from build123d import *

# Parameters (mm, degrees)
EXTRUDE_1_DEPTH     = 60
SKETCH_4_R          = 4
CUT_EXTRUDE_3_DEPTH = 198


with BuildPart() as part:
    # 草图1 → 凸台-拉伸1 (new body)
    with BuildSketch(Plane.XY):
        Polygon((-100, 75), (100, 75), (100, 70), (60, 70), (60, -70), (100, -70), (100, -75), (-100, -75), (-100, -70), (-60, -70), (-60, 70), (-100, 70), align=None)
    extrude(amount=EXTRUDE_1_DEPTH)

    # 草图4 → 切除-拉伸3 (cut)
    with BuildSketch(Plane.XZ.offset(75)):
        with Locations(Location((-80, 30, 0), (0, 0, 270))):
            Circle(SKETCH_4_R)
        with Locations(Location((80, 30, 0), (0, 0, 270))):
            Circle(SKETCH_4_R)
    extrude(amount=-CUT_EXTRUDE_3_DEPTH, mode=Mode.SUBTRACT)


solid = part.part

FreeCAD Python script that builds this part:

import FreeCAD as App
import Part
import Sketcher

V = App.Vector
Q = App.Units.Quantity

doc = App.newDocument("Part")
body = doc.addObject("PartDesign::Body", "Body")

# Sketch on XY plane
sketch1 = body.newObject("Sketcher::SketchObject", "Sketch")
sketch1.AttachmentSupport = (doc.getObject("XY_Plane"), [""])
sketch1.MapMode = "FlatFace"
sketch1.addGeometry(Part.LineSegment(V(100, 75, 0), V(-100, 75, 0)), False)
sketch1.addGeometry(Part.LineSegment(V(-100, 75, 0), V(-100, 70, 0)), False)
sketch1.addGeometry(Part.LineSegment(V(-100, 70, 0), V(-60, 70, 0)), False)
sketch1.addGeometry(Part.LineSegment(V(-60, 70, 0), V(-60, -70, 0)), False)
sketch1.addGeometry(Part.LineSegment(V(-60, -70, 0), V(-100, -70, 0)), False)
sketch1.addGeometry(Part.LineSegment(V(-100, -70, 0), V(-100, -75, 0)), False)
sketch1.addGeometry(Part.LineSegment(V(-100, -75, 0), V(100, -75, 0)), False)
sketch1.addGeometry(Part.LineSegment(V(100, -75, 0), V(100, -70, 0)), False)
sketch1.addGeometry(Part.LineSegment(V(100, -70, 0), V(60, -70, 0)), False)
sketch1.addGeometry(Part.LineSegment(V(60, -70, 0), V(60, 70, 0)), False)
sketch1.addGeometry(Part.LineSegment(V(60, 70, 0), V(100, 70, 0)), False)
sketch1.addGeometry(Part.LineSegment(V(100, 70, 0), V(100, 75, 0)), False)
sketch1.addConstraint(Sketcher.Constraint("Coincident", 0, 2, 1, 1))
sketch1.addConstraint(Sketcher.Constraint("Coincident", 1, 2, 2, 1))
sketch1.addConstraint(Sketcher.Constraint("Coincident", 2, 2, 3, 1))
sketch1.addConstraint(Sketcher.Constraint("Coincident", 3, 2, 4, 1))
sketch1.addConstraint(Sketcher.Constraint("Coincident", 4, 2, 5, 1))
sketch1.addConstraint(Sketcher.Constraint("Coincident", 5, 2, 6, 1))
sketch1.addConstraint(Sketcher.Constraint("Coincident", 6, 2, 7, 1))
sketch1.addConstraint(Sketcher.Constraint("Coincident", 7, 2, 8, 1))
sketch1.addConstraint(Sketcher.Constraint("Coincident", 8, 2, 9, 1))
sketch1.addConstraint(Sketcher.Constraint("Coincident", 9, 2, 10, 1))
sketch1.addConstraint(Sketcher.Constraint("Coincident", 10, 2, 11, 1))
sketch1.addConstraint(Sketcher.Constraint("Coincident", 11, 2, 0, 1))
sketch1.addConstraint(Sketcher.Constraint("Horizontal", 0))
sketch1.addConstraint(Sketcher.Constraint("Vertical", 1))
sketch1.addConstraint(Sketcher.Constraint("Horizontal", 2))
sketch1.addConstraint(Sketcher.Constraint("Vertical", 3))
sketch1.addConstraint(Sketcher.Constraint("Horizontal", 4))
sketch1.addConstraint(Sketcher.Constraint("Vertical", 5))
sketch1.addConstraint(Sketcher.Constraint("Horizontal", 6))
sketch1.addConstraint(Sketcher.Constraint("Vertical", 7))
sketch1.addConstraint(Sketcher.Constraint("Horizontal", 8))
sketch1.addConstraint(Sketcher.Constraint("Vertical", 9))
sketch1.addConstraint(Sketcher.Constraint("Horizontal", 10))
sketch1.addConstraint(Sketcher.Constraint("Vertical", 11))
sketch1.addConstraint(Sketcher.Constraint("Symmetric", 0, 2, 6, 2, -1, 1))
sketch1.addConstraint(Sketcher.Constraint("Symmetric", 2, 2, 8, 2, -1, 1))
sketch1.addConstraint(Sketcher.Constraint("Symmetric", 4, 2, 10, 2, -1, 1))
sketch1.addConstraint(Sketcher.Constraint("Symmetric", 4, 2, 7, 2, -2))
sketch1.addConstraint(Sketcher.Constraint("DistanceX", 0, 2, 0, 1, Q("200 mm")))
sketch1.addConstraint(Sketcher.Constraint("DistanceX", 2, 1, 2, 2, Q("40 mm")))
sketch1.addConstraint(Sketcher.Constraint("DistanceY", 1, 2, 1, 1, Q("5 mm")))
sketch1.addConstraint(Sketcher.Constraint("DistanceY", 3, 2, 3, 1, Q("140 mm")))
pad1 = body.newObject("PartDesign::Pad", "Pad")
pad1.Profile = sketch1
pad1.Length = 60

# Sketch on XZ plane
sketch2 = body.newObject("Sketcher::SketchObject", "Sketch001")
sketch2.AttachmentSupport = (doc.getObject("XZ_Plane"), [""])
sketch2.MapMode = "FlatFace"
sketch2.AttachmentOffset = App.Placement(V(0, 0, 75), App.Rotation())
sketch2.addGeometry(Part.Circle(V(-80, 30, 0), V(0, 0, 1), 4), False)
sketch2.addGeometry(Part.Circle(V(80, 30, 0), V(0, 0, 1), 4), False)
sketch2.addConstraint(Sketcher.Constraint("Equal", 0, 1))
sketch2.addConstraint(Sketcher.Constraint("Symmetric", 0, 3, 1, 3, -2))
sketch2.addConstraint(Sketcher.Constraint("Diameter", 0, Q("8 mm")))
sketch2.addConstraint(Sketcher.Constraint("DistanceX", 0, 3, -1, 1, Q("80 mm")))
sketch2.addConstraint(Sketcher.Constraint("DistanceY", -1, 1, 0, 3, Q("30 mm")))
pocket1 = body.newObject("PartDesign::Pocket", "Pocket")
pocket1.Profile = sketch2
pocket1.Length = 198

doc.recompute()
